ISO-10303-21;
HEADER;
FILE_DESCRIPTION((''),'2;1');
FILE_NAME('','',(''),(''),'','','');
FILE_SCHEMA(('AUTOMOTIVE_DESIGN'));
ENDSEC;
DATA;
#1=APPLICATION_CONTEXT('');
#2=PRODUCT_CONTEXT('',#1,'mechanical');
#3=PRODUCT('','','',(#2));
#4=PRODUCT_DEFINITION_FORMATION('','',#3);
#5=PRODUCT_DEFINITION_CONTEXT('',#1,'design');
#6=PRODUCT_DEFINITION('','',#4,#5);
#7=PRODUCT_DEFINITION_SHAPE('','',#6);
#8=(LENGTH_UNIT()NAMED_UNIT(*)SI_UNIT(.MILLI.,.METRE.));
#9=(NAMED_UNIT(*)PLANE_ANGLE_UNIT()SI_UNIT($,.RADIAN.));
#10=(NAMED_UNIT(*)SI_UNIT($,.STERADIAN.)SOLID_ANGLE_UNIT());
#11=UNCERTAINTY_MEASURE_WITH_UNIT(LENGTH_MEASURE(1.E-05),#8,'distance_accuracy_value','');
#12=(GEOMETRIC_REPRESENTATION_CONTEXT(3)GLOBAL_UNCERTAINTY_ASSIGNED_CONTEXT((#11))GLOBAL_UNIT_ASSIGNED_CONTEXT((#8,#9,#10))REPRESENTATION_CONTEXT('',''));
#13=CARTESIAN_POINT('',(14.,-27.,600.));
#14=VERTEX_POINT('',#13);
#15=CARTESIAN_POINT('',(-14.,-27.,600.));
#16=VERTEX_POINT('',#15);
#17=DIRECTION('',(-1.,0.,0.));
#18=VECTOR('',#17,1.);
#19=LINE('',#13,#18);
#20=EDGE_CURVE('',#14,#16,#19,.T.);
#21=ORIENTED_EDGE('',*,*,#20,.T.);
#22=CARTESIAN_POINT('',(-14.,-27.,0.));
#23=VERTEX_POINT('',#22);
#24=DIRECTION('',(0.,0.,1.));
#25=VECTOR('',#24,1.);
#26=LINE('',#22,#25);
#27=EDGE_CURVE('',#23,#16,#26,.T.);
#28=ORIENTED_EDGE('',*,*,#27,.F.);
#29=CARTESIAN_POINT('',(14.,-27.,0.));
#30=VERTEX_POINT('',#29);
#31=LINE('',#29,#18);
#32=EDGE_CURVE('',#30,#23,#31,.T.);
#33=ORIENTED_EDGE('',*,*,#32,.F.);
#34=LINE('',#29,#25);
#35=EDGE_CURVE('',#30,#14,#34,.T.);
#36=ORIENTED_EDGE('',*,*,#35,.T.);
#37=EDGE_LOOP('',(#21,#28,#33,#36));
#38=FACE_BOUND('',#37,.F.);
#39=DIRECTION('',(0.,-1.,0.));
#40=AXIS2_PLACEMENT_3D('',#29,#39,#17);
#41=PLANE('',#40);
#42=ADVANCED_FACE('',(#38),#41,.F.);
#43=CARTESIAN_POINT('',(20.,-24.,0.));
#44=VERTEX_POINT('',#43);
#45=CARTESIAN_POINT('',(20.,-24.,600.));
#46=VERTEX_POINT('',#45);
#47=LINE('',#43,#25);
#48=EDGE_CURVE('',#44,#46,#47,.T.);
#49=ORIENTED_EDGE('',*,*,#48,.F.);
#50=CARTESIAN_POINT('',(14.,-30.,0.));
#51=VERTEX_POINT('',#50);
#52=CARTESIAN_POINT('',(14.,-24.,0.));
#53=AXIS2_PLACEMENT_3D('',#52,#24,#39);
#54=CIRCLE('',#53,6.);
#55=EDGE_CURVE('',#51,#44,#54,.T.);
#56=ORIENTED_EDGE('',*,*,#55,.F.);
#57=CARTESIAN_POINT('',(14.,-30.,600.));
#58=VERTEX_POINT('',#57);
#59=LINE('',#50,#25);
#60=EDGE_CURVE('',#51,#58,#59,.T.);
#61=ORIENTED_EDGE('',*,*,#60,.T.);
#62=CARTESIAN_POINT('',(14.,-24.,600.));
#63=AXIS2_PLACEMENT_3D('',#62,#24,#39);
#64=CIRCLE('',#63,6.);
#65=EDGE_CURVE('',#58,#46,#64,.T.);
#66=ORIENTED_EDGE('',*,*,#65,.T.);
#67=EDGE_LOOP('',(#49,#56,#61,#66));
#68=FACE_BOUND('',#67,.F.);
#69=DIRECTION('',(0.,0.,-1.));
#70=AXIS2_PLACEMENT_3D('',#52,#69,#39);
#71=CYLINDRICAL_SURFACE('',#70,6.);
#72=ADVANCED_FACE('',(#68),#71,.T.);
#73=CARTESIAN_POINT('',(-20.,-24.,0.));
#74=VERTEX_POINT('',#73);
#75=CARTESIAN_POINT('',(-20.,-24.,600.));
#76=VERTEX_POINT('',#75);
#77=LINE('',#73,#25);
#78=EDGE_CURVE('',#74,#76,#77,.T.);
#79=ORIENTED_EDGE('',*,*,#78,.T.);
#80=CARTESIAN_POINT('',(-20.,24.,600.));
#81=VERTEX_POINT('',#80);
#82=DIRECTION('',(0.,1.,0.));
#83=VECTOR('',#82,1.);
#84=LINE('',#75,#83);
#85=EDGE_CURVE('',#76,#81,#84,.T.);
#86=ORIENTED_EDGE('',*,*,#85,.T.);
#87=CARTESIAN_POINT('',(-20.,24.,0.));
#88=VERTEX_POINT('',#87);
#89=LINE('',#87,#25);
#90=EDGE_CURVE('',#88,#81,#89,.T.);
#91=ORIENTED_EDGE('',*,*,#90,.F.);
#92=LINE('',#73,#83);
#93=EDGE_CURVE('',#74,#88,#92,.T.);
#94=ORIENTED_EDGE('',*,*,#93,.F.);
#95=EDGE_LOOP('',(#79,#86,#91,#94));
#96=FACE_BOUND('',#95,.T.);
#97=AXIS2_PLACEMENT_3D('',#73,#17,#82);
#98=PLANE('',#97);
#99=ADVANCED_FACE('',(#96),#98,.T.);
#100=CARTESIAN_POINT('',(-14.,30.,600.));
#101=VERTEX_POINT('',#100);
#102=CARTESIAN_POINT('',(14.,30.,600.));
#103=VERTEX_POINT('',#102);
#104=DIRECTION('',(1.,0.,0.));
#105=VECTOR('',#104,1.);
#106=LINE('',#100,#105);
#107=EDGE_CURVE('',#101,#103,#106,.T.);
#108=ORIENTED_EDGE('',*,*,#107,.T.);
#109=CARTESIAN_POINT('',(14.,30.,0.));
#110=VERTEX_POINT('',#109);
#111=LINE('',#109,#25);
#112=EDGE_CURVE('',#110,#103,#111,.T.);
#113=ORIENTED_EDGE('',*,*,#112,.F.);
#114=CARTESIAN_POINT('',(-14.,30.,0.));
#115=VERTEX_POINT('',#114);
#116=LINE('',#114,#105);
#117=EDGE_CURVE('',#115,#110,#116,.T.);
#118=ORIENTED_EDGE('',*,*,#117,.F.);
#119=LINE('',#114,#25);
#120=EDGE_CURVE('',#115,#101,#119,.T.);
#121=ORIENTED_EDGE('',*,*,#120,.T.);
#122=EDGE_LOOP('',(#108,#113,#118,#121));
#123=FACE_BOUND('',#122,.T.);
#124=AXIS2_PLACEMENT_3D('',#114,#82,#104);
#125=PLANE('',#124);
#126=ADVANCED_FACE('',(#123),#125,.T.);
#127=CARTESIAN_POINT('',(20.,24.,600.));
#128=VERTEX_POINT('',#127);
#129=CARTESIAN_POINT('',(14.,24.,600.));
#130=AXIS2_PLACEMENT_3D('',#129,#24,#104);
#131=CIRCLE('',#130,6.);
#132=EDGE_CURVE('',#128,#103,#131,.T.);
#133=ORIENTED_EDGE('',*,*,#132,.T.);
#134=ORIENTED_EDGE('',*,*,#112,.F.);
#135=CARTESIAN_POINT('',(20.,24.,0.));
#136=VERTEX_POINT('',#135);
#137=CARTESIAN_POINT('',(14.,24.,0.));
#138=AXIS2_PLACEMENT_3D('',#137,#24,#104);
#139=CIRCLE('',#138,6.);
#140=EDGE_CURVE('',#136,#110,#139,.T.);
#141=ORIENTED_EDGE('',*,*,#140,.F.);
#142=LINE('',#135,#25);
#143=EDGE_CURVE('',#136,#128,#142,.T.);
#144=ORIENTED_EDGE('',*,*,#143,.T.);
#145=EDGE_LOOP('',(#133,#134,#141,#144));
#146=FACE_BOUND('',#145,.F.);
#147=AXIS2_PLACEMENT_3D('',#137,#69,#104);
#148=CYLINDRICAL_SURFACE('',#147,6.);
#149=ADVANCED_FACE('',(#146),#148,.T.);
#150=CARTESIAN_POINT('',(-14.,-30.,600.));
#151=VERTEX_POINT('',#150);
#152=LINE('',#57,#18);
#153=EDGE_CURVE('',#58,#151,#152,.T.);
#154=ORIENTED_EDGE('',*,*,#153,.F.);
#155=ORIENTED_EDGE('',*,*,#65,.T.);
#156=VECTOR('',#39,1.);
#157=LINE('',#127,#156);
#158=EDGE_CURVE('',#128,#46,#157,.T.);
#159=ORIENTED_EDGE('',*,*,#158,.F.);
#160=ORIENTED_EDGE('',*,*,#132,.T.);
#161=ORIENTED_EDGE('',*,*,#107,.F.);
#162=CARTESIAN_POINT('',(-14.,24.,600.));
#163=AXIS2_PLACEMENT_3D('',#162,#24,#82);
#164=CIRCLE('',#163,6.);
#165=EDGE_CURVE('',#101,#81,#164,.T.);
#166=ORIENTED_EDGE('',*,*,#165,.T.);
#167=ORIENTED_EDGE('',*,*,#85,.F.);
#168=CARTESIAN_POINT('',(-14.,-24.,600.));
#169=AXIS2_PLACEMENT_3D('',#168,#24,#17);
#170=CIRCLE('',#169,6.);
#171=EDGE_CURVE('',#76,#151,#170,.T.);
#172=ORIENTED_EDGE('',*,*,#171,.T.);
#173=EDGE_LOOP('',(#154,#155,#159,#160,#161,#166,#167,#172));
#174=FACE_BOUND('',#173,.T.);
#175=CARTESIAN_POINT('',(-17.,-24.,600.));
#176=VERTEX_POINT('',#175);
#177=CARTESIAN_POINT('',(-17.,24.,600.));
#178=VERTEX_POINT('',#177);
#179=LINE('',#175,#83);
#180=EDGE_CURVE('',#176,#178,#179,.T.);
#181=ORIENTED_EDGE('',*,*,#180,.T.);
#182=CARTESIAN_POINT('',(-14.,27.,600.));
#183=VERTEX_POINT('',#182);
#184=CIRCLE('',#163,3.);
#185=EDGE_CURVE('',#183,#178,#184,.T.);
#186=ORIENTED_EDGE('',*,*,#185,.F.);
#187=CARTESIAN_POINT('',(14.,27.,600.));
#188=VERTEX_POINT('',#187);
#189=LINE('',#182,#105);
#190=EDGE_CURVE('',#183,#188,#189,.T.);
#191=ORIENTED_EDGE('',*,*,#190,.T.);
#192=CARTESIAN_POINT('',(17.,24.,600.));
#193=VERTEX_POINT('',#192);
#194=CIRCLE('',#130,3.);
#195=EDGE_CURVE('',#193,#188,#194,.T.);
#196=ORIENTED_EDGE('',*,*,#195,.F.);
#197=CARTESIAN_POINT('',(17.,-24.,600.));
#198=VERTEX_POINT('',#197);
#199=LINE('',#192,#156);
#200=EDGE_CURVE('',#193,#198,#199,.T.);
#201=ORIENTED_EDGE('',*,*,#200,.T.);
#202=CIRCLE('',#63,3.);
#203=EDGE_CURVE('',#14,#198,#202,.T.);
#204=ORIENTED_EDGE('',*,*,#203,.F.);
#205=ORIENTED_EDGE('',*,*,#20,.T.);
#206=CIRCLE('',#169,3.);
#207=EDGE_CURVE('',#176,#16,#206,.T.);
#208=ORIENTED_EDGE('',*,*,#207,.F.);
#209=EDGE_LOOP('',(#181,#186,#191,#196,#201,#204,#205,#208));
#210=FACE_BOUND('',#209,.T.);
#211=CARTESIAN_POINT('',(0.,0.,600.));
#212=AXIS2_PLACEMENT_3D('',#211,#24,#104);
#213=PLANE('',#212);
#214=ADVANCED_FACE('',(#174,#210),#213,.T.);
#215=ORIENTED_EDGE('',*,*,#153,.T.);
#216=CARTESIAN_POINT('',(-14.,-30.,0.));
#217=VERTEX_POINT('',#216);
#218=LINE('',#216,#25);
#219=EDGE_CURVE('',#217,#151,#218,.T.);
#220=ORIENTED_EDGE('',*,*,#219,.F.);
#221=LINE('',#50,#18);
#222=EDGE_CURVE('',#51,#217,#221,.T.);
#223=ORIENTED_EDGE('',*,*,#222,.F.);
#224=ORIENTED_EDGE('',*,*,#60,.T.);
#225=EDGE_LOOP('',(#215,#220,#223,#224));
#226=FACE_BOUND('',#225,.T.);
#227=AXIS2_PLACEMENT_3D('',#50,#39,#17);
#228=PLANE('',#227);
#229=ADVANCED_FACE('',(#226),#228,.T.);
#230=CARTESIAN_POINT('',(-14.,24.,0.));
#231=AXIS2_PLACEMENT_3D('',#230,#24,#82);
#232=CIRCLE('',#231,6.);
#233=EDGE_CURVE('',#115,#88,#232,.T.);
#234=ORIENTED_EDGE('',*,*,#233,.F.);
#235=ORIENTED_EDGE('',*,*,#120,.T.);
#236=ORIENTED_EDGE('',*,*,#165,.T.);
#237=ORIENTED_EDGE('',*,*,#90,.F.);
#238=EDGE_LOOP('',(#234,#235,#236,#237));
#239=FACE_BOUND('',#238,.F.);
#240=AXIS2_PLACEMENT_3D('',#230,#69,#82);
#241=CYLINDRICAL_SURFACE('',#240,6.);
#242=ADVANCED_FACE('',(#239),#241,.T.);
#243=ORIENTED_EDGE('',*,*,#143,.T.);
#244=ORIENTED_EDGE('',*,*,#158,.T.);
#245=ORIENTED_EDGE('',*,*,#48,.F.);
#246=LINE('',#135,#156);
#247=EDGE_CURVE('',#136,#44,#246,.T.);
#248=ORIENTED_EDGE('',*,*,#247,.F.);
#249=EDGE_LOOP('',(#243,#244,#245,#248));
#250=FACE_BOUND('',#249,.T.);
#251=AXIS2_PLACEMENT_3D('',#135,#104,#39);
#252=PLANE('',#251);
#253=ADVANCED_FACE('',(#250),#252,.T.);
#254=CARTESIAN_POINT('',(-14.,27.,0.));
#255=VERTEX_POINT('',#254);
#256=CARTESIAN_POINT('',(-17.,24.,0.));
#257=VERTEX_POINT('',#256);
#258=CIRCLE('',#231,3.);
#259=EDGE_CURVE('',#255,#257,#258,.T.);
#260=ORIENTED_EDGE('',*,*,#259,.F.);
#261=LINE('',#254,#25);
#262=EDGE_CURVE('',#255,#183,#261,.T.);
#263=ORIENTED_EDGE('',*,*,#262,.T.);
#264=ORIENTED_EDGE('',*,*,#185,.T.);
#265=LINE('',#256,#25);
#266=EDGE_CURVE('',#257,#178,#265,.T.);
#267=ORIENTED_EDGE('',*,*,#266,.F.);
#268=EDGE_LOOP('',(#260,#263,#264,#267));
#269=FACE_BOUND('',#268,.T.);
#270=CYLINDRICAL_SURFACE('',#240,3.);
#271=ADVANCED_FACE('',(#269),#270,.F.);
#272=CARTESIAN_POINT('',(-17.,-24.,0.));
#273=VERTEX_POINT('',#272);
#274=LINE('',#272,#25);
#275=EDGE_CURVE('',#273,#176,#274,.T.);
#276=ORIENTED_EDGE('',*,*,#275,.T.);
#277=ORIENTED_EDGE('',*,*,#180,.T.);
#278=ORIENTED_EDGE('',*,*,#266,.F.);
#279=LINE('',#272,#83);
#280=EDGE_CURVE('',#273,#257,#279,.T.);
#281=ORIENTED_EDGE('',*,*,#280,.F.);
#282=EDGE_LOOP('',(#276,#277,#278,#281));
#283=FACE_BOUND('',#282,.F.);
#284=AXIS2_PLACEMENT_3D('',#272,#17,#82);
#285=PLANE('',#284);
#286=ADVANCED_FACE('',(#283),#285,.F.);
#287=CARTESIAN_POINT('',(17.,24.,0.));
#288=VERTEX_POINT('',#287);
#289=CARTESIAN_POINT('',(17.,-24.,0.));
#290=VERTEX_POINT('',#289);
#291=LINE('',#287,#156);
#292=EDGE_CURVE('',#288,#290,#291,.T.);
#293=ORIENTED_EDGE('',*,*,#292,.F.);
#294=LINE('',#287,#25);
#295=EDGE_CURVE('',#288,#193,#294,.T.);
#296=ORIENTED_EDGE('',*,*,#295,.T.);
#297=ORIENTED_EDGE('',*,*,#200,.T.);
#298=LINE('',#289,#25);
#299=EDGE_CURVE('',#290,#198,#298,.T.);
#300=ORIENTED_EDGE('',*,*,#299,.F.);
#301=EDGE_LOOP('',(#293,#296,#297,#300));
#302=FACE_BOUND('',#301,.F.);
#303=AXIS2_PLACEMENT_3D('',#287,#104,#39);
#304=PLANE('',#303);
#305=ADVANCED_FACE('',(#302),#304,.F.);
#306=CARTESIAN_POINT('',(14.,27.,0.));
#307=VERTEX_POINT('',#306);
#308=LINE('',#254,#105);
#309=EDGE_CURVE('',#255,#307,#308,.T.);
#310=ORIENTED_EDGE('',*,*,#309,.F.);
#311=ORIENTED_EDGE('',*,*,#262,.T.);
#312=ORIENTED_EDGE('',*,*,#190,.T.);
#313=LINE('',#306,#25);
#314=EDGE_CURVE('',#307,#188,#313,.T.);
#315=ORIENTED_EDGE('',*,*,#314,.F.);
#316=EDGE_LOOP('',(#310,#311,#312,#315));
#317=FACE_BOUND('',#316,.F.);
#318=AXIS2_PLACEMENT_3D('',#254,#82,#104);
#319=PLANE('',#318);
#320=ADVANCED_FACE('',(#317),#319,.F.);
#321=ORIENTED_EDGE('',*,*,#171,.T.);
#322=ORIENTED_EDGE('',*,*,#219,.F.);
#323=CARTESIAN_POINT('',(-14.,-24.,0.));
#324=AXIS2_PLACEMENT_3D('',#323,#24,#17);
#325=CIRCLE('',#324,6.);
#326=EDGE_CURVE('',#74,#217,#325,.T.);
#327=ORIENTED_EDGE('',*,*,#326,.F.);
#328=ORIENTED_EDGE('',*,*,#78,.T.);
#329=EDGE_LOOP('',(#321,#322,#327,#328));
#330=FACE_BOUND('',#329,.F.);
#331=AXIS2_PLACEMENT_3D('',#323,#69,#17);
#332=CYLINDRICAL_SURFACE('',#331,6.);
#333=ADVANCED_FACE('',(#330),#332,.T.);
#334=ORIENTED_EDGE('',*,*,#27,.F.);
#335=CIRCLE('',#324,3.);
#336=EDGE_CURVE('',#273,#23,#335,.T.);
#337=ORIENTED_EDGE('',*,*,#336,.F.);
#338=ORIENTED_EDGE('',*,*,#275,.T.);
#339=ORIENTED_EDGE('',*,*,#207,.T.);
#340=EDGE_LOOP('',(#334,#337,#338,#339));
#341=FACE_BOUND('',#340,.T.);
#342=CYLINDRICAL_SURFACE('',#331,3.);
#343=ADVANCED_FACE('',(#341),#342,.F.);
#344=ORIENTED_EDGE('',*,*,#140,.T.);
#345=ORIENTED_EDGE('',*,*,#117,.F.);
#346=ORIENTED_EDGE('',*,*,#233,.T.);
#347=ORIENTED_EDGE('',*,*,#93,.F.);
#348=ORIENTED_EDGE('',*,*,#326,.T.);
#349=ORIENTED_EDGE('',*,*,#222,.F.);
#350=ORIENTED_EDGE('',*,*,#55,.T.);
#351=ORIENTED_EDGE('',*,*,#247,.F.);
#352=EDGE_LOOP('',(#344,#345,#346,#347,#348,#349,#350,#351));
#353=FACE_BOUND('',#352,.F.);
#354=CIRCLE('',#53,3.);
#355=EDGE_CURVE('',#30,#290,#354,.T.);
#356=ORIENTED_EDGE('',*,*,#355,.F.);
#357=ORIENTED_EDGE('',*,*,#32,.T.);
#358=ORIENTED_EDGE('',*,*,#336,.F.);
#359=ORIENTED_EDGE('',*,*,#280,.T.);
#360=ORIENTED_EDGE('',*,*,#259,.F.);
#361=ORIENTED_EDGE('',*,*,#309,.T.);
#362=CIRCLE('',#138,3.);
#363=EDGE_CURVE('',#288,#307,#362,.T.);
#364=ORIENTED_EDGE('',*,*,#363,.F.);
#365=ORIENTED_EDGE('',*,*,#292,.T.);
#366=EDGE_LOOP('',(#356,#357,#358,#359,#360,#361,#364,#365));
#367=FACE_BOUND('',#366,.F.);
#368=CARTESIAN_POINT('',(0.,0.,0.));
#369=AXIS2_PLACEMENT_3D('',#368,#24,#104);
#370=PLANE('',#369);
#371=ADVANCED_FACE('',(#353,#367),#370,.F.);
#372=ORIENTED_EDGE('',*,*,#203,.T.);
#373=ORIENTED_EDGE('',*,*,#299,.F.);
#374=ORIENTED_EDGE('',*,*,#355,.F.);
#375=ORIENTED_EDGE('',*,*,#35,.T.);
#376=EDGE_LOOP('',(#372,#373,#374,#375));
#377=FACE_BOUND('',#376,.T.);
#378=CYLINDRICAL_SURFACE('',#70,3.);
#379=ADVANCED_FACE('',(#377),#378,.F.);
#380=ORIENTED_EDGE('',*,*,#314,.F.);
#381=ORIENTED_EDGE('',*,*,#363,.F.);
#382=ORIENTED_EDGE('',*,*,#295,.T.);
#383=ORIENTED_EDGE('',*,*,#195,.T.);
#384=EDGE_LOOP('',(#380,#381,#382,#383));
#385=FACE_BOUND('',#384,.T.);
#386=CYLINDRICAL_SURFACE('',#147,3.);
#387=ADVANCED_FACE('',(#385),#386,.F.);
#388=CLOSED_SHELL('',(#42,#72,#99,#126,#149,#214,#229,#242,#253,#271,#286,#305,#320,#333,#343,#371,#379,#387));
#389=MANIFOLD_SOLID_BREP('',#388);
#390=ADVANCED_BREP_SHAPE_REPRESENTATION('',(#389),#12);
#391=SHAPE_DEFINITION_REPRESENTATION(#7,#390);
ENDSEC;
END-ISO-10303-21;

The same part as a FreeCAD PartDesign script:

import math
import FreeCAD as App
import Part
import Sketcher

V = App.Vector
Q = App.Units.Quantity

doc = App.newDocument("Part")
body = doc.addObject("PartDesign::Body", "Body")

sketch1 = doc.addObject("Sketcher::SketchObject", "Sketch")
body.addObject(sketch1)
sketch1.AttachmentSupport = (doc.XY_Plane, [""])
sketch1.MapMode = "FlatFace"
sketch1.addGeometry(Part.LineSegment(V(-20, 24, 0), V(-20, -24, 0)), False)
sketch1.addGeometry(Part.ArcOfCircle(Part.Circle(V(-14, -24, 0), V(0, 0, 1), 6), math.radians(180), math.radians(270)), False)
sketch1.addGeometry(Part.LineSegment(V(-14, -30, 0), V(14, -30, 0)), False)
sketch1.addGeometry(Part.ArcOfCircle(Part.Circle(V(14, -24, 0), V(0, 0, 1), 6), math.radians(-90), math.radians(0)), False)
sketch1.addGeometry(Part.LineSegment(V(20, -24, 0), V(20, 24, 0)), False)
sketch1.addGeometry(Part.ArcOfCircle(Part.Circle(V(14, 24, 0), V(0, 0, 1), 6), math.radians(0), math.radians(90)), False)
sketch1.addGeometry(Part.LineSegment(V(14, 30, 0), V(-14, 30, 0)), False)
sketch1.addGeometry(Part.ArcOfCircle(Part.Circle(V(-14, 24, 0), V(0, 0, 1), 6), math.radians(90), math.radians(180)), False)
sketch1.addGeometry(Part.ArcOfCircle(Part.Circle(V(-14, 24, 0), V(0, 0, 1), 3), math.radians(90), math.radians(180)), False)
sketch1.addGeometry(Part.LineSegment(V(-14, 27, 0), V(14, 27, 0)), False)
sketch1.addGeometry(Part.ArcOfCircle(Part.Circle(V(14, 24, 0), V(0, 0, 1), 3), math.radians(0), math.radians(90)), False)
sketch1.addGeometry(Part.LineSegment(V(17, 24, 0), V(17, -24, 0)), False)
sketch1.addGeometry(Part.ArcOfCircle(Part.Circle(V(14, -24, 0), V(0, 0, 1), 3), math.radians(-90), math.radians(0)), False)
sketch1.addGeometry(Part.LineSegment(V(14, -27, 0), V(-14, -27, 0)), False)
sketch1.addGeometry(Part.ArcOfCircle(Part.Circle(V(-14, -24, 0), V(0, 0, 1), 3), math.radians(180), math.radians(270)), False)
sketch1.addGeometry(Part.LineSegment(V(-17, -24, 0), V(-17, 24, 0)), False)
sketch1.addConstraint(Sketcher.Constraint("Tangent", 0, 2, 1, 1))
sketch1.addConstraint(Sketcher.Constraint("Tangent", 1, 2, 2, 1))
sketch1.addConstraint(Sketcher.Constraint("Tangent", 2, 2, 3, 1))
sketch1.addConstraint(Sketcher.Constraint("Tangent", 3, 2, 4, 1))
sketch1.addConstraint(Sketcher.Constraint("Tangent", 4, 2, 5, 1))
sketch1.addConstraint(Sketcher.Constraint("Tangent", 5, 2, 6, 1))
sketch1.addConstraint(Sketcher.Constraint("Tangent", 6, 2, 7, 1))
sketch1.addConstraint(Sketcher.Constraint("Tangent", 7, 2, 0, 1))
sketch1.addConstraint(Sketcher.Constraint("Tangent", 8, 1, 9, 1))
sketch1.addConstraint(Sketcher.Constraint("Tangent", 9, 2, 10, 2))
sketch1.addConstraint(Sketcher.Constraint("Tangent", 10, 1, 11, 1))
sketch1.addConstraint(Sketcher.Constraint("Tangent", 11, 2, 12, 2))
sketch1.addConstraint(Sketcher.Constraint("Tangent", 12, 1, 13, 1))
sketch1.addConstraint(Sketcher.Constraint("Tangent", 13, 2, 14, 2))
sketch1.addConstraint(Sketcher.Constraint("Tangent", 14, 1, 15, 1))
sketch1.addConstraint(Sketcher.Constraint("Tangent", 15, 2, 8, 2))
sketch1.addConstraint(Sketcher.Constraint("Vertical", 0))
sketch1.addConstraint(Sketcher.Constraint("Horizontal", 2))
sketch1.addConstraint(Sketcher.Constraint("Vertical", 4))
sketch1.addConstraint(Sketcher.Constraint("Horizontal", 6))
sketch1.addConstraint(Sketcher.Constraint("Horizontal", 9))
sketch1.addConstraint(Sketcher.Constraint("Vertical", 11))
sketch1.addConstraint(Sketcher.Constraint("Horizontal", 13))
sketch1.addConstraint(Sketcher.Constraint("Vertical", 15))
sketch1.addConstraint(Sketcher.Constraint("Coincident", 8, 3, 7, 3))
sketch1.addConstraint(Sketcher.Constraint("Coincident", 10, 3, 5, 3))
sketch1.addConstraint(Sketcher.Constraint("Coincident", 12, 3, 3, 3))
sketch1.addConstraint(Sketcher.Constraint("Equal", 1, 3))
sketch1.addConstraint(Sketcher.Constraint("Equal", 3, 5))
sketch1.addConstraint(Sketcher.Constraint("Equal", 5, 7))
sketch1.addConstraint(Sketcher.Constraint("Equal", 12, 14))
sketch1.addConstraint(Sketcher.Constraint("Symmetric", 1, 3, 5, 3, -1, 1))
sketch1.addConstraint(Sketcher.Constraint("Radius", 1, Q("6 mm")))
sketch1.addConstraint(Sketcher.Constraint("Radius", 8, Q("3 mm")))
sketch1.addConstraint(Sketcher.Constraint("DistanceX", 0, 2, -1, 1, Q("20 mm")))
sketch1.addConstraint(Sketcher.Constraint("DistanceY", 1, 2, -1, 1, Q("30 mm")))
pad1 = doc.addObject("PartDesign::Pad", "Pad")
body.addObject(pad1)
pad1.Profile = sketch1
pad1.Length = 600

doc.recompute()
